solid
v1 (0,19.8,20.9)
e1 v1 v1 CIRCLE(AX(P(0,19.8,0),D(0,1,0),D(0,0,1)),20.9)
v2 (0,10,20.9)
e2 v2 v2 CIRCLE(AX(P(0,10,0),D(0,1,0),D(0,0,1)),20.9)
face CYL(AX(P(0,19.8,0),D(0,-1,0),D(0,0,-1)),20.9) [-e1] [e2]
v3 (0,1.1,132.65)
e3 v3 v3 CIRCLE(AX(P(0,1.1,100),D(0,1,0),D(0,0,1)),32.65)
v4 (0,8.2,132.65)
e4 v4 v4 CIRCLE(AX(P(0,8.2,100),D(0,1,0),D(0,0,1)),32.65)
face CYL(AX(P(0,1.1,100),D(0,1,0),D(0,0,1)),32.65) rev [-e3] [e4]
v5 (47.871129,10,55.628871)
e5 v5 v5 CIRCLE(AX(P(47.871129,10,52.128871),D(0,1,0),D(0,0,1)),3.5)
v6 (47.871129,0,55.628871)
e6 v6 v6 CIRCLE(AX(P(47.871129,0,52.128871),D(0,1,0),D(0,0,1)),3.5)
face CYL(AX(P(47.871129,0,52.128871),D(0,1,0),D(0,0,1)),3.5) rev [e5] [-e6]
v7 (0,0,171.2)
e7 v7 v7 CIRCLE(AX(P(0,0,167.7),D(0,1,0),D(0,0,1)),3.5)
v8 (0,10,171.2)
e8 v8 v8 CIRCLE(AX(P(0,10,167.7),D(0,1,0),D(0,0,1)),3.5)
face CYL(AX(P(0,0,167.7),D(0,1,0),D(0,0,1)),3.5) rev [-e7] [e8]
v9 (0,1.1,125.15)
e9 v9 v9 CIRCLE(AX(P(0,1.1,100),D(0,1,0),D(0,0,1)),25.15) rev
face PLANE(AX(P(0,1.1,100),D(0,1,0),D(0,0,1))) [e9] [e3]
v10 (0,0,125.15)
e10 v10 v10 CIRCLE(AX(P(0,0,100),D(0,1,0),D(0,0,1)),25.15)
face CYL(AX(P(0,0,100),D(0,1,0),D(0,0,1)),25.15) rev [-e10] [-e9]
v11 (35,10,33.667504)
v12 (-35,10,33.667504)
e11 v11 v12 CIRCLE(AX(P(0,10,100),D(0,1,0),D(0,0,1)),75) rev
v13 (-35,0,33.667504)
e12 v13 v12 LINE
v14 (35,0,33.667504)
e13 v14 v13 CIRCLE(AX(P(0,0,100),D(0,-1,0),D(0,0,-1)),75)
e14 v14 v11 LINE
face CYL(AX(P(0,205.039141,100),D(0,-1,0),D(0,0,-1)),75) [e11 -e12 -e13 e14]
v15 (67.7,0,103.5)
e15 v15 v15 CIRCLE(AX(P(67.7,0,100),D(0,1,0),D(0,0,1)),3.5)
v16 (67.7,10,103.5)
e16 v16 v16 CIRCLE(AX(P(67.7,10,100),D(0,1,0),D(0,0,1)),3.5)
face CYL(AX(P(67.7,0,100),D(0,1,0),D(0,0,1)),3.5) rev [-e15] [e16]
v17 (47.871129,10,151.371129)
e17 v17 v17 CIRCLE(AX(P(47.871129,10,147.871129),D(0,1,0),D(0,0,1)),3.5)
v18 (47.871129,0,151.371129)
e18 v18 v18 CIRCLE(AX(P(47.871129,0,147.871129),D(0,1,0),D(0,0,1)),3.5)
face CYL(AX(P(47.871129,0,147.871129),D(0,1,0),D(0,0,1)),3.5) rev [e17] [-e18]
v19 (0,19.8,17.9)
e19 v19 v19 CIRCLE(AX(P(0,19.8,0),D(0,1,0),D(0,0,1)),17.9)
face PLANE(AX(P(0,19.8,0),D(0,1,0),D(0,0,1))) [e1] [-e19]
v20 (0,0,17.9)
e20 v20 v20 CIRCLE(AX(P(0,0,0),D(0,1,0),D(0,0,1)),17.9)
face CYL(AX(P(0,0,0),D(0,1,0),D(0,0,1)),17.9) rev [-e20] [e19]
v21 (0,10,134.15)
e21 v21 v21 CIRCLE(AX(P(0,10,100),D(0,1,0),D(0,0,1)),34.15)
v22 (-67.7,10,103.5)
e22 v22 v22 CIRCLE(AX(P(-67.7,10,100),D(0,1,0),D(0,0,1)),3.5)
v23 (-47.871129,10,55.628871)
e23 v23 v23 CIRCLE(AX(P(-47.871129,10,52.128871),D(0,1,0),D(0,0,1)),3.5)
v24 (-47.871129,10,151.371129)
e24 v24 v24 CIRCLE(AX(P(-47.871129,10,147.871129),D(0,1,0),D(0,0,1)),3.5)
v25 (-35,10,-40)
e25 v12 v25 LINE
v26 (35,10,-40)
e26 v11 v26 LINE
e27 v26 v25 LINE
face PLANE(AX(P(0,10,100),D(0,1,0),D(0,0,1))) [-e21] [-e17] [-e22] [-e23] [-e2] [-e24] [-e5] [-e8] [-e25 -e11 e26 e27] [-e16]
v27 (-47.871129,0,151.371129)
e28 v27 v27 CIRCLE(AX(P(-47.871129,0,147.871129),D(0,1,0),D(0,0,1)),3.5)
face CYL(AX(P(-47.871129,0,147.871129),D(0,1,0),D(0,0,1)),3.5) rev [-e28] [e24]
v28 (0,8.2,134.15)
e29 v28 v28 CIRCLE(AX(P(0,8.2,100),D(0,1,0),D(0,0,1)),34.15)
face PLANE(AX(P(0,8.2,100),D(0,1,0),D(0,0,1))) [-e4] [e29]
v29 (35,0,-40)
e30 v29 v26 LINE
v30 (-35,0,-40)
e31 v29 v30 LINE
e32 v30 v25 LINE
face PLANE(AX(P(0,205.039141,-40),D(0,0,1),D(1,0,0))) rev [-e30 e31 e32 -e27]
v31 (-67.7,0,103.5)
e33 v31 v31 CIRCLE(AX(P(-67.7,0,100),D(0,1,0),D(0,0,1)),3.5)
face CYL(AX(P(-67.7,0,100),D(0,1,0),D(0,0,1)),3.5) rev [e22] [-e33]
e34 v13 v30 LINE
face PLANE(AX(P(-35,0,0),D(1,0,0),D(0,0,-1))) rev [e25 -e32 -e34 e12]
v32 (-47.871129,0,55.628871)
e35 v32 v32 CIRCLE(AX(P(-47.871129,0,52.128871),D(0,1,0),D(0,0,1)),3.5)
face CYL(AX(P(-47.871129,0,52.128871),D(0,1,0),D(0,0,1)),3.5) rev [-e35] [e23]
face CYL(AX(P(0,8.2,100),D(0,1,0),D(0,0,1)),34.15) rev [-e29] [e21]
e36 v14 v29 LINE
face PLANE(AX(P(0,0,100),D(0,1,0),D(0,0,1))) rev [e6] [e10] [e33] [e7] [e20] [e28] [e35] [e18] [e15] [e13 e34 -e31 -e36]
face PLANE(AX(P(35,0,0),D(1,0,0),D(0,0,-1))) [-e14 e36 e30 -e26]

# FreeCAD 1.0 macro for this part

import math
import FreeCAD as App
import Part
import Sketcher
Q = App.Units.Quantity

doc = App.newDocument("Part")
body = doc.addObject("PartDesign::Body", "Body")

sketch1 = doc.addObject("Sketcher::SketchObject", "Sketch")
body.addObject(sketch1)
sketch1.AttachmentSupport = (doc.XZ_Plane, [""])
sketch1.MapMode = "FlatFace"
sketch1.addGeometry([
    Part.LineSegment(App.Vector(64, 87, 0), App.Vector(44, -9, 0)),
    Part.ArcOfCircle(Part.Circle(App.Vector(0, 0, 0), App.Vector(0, 0, 1), 45), math.radians(-168), math.radians(-12)),
    Part.LineSegment(App.Vector(-44, -9, 0), App.Vector(-64, 87, 0)),
    Part.ArcOfCircle(Part.Circle(App.Vector(0, 100, 0), App.Vector(0, 0, 1), 65), math.radians(-12), math.radians(192)),
], False)
sketch1.addConstraint([
    Sketcher.Constraint("Tangent", 0, 2, 1, 2),
    Sketcher.Constraint("Tangent", 1, 1, 2, 1),
    Sketcher.Constraint("Tangent", 2, 2, 3, 2),
    Sketcher.Constraint("Tangent", 3, 1, 0, 1),
    Sketcher.Constraint("Coincident", 1, 3, -1, 1),
    Sketcher.Constraint("PointOnObject", 3, 3, -2),
    Sketcher.Constraint("Radius", 1, Q("45 mm")),
    Sketcher.Constraint("Radius", 3, Q("65 mm")),
    Sketcher.Constraint("DistanceY", -1, 1, 3, 3, Q("100 mm")),
])
pad1 = doc.addObject("PartDesign::Pad", "Pad")
body.addObject(pad1)
pad1.Profile = sketch1
pad1.Length = 10
pad1.Reversed = True

sketch2 = doc.addObject("Sketcher::SketchObject", "Sketch001")
body.addObject(sketch2)
sketch2.AttachmentSupport = (doc.XZ_Plane, [""])
sketch2.MapMode = "FlatFace"
sketch2.AttachmentOffset = App.Placement(App.Vector(0, 0, -10), App.Rotation())
sketch2.addGeometry([
    Part.Circle(App.Vector(0, 0, 0), App.Vector(0, 0, 1), 18),
    Part.Circle(App.Vector(0, 100, 0), App.Vector(0, 0, 1), 25),
], False)
sketch2.addConstraint([
    Sketcher.Constraint("Coincident", 0, 3, -1, 1),
    Sketcher.Constraint("PointOnObject", 1, 3, -2),
    Sketcher.Constraint("Diameter", 0, Q("35.8 mm")),
    Sketcher.Constraint("Diameter", 1, Q("50.3 mm")),
    Sketcher.Constraint("DistanceY", -1, 1, 1, 3, Q("100 mm")),
])
pocket1 = doc.addObject("PartDesign::Pocket", "Pocket")
body.addObject(pocket1)
pocket1.Profile = sketch2
pocket1.Type = "ThroughAll"
pocket1.Reversed = True

sketch3 = doc.addObject("Sketcher::SketchObject", "Sketch002")
body.addObject(sketch3)
sketch3.AttachmentSupport = (doc.XZ_Plane, [""])
sketch3.MapMode = "FlatFace"
sketch3.AttachmentOffset = App.Placement(App.Vector(0, 0, -10), App.Rotation())
sketch3.addGeometry(Part.Circle(App.Vector(0, 100, 0), App.Vector(0, 0, 1), 34), False)
sketch3.addConstraint([
    Sketcher.Constraint("PointOnObject", 0, 3, -2),
    Sketcher.Constraint("Diameter", 0, Q("68.3 mm")),
    Sketcher.Constraint("DistanceY", -1, 1, 0, 3, Q("100 mm")),
])
pocket2 = doc.addObject("PartDesign::Pocket", "Pocket001")
body.addObject(pocket2)
pocket2.Profile = sketch3
pocket2.Length = 1.8
pocket2.Reversed = True

sketch4 = doc.addObject("Sketcher::SketchObject", "Sketch003")
body.addObject(sketch4)
sketch4.AttachmentSupport = (doc.XZ_Plane, [""])
sketch4.MapMode = "FlatFace"
sketch4.AttachmentOffset = App.Placement(App.Vector(0, 0, -8.2), App.Rotation())
sketch4.addGeometry(Part.Circle(App.Vector(0, 100, 0), App.Vector(0, 0, 1), 33), False)
sketch4.addConstraint([
    Sketcher.Constraint("PointOnObject", 0, 3, -2),
    Sketcher.Constraint("Diameter", 0, Q("65.3 mm")),
    Sketcher.Constraint("DistanceY", -1, 1, 0, 3, Q("100 mm")),
])
pocket3 = doc.addObject("PartDesign::Pocket", "Pocket002")
body.addObject(pocket3)
pocket3.Profile = sketch4
pocket3.Length = 7.1
pocket3.Reversed = True

sketch5 = doc.addObject("Sketcher::SketchObject", "Sketch004")
body.addObject(sketch5)
sketch5.AttachmentSupport = (doc.XZ_Plane, [""])
sketch5.MapMode = "FlatFace"
sketch5.AttachmentOffset = App.Placement(App.Vector(0, 0, -19.8), App.Rotation())
sketch5.addGeometry([
    Part.Circle(App.Vector(0, 0, 0), App.Vector(0, 0, 1), 21),
    Part.Circle(App.Vector(0, 0, 0), App.Vector(0, 0, 1), 18),
], False)
sketch5.addConstraint([
    Sketcher.Constraint("Coincident", 0, 3, -1, 1),
    Sketcher.Constraint("Coincident", 1, 3, -1, 1),
    Sketcher.Constraint("Diameter", 0, Q("41.8 mm")),
    Sketcher.Constraint("Diameter", 1, Q("35.8 mm")),
])
pad2 = doc.addObject("PartDesign::Pad", "Pad001")
body.addObject(pad2)
pad2.Profile = sketch5
pad2.Length = 9.8

sketch6 = doc.addObject("Sketcher::SketchObject", "Sketch005")
body.addObject(sketch6)
sketch6.AttachmentSupport = (doc.XZ_Plane, [""])
sketch6.MapMode = "FlatFace"
sketch6.AttachmentOffset = App.Placement(App.Vector(0, 0, -10), App.Rotation())
sketch6.addGeometry([
    Part.LineSegment(App.Vector(-44.1, -9, 0), App.Vector(-45, -4.5, 0)),
    Part.LineSegment(App.Vector(-45, -4.5, 0), App.Vector(-45, -40, 0)),
    Part.LineSegment(App.Vector(-45, -40, 0), App.Vector(-20.6, -40, 0)),
    Part.ArcOfCircle(Part.Circle(App.Vector(0, 0, 0), App.Vector(0, 0, 1), 45), math.radians(-168), math.radians(-117)),
    Part.ArcOfCircle(Part.Circle(App.Vector(0, 100, 0), App.Vector(0, 0, 1), 75), math.radians(-41), math.radians(221)),
    Part.LineSegment(App.Vector(-56.2, 50.3, 0), App.Vector(-63.7, 87, 0)),
    Part.ArcOfCircle(Part.Circle(App.Vector(0, 100, 0), App.Vector(0, 0, 1), 65), math.radians(-12), math.radians(192)),
    Part.LineSegment(App.Vector(63.7, 87, 0), App.Vector(56.2, 50.3, 0)),
    Part.LineSegment(App.Vector(45, -40, 0), App.Vector(45, -4.5, 0)),
    Part.LineSegment(App.Vector(45, -4.5, 0), App.Vector(44.1, -9, 0)),
    Part.ArcOfCircle(Part.Circle(App.Vector(0, 0, 0), App.Vector(0, 0, 1), 45), math.radians(-63), math.radians(-12)),
    Part.LineSegment(App.Vector(20.6, -40, 0), App.Vector(45, -40, 0)),
], False)
sketch6.addConstraint([
    Sketcher.Constraint("Coincident", 0, 2, 1, 1),
    Sketcher.Constraint("Coincident", 1, 2, 2, 1),
    Sketcher.Constraint("Coincident", 2, 2, 3, 2),
    Sketcher.Constraint("Tangent", 3, 1, 0, 1),
    Sketcher.Constraint("Coincident", 4, 2, 5, 1),
    Sketcher.Constraint("Tangent", 5, 2, 6, 2),
    Sketcher.Constraint("Tangent", 6, 1, 7, 1),
    Sketcher.Constraint("Coincident", 7, 2, 4, 1),
    Sketcher.Constraint("Coincident", 8, 2, 9, 1),
    Sketcher.Constraint("Tangent", 9, 2, 10, 2),
    Sketcher.Constraint("Coincident", 10, 1, 11, 1),
    Sketcher.Constraint("Coincident", 11, 2, 8, 1),
    Sketcher.Constraint("Vertical", 1),
    Sketcher.Constraint("Horizontal", 2),
    Sketcher.Constraint("Vertical", 8),
    Sketcher.Constraint("Horizontal", 11),
    Sketcher.Constraint("Coincident", 3, 3, -1, 1),
    Sketcher.Constraint("Coincident", 10, 3, -1, 1),
    Sketcher.Constraint("Coincident", 6, 3, 4, 3),
    Sketcher.Constraint("Equal", 3, 10),
    Sketcher.Constraint("Symmetric", 5, 2, 6, 1, -2),
    Sketcher.Constraint("Symmetric", 0, 2, 8, 2, -2),
    Sketcher.Constraint("Parallel", 0, 5),
    Sketcher.Constraint("Horizontal", 2, 2, 10, 1),
    Sketcher.Constraint("Radius", 3, Q("45 mm")),
    Sketcher.Constraint("Radius", 4, Q("75 mm")),
    Sketcher.Constraint("Radius", 6, Q("65 mm")),
    Sketcher.Constraint("DistanceY", -1, 1, 4, 3, Q("100 mm")),
    Sketcher.Constraint("DistanceX", 0, 2, -1, 1, Q("45 mm")),
    Sketcher.Constraint("DistanceY", 1, 2, -1, 1, Q("40 mm")),
    Sketcher.Constraint("DistanceY", 3, 1, -1, 1, Q("9 mm")),
])
pad3 = doc.addObject("PartDesign::Pad", "Pad002")
body.addObject(pad3)
pad3.Profile = sketch6
pad3.Length = 10

sketch7 = doc.addObject("Sketcher::SketchObject", "Sketch006")
body.addObject(sketch7)
sketch7.AttachmentSupport = (doc.XZ_Plane, [""])
sketch7.MapMode = "FlatFace"
sketch7.addGeometry([
    Part.LineSegment(App.Vector(-45, -5, 0), App.Vector(-45, 40, 0)),
    Part.ArcOfCircle(Part.Circle(App.Vector(0, 100, 0), App.Vector(0, 0, 1), 75), math.radians(-138.54), math.radians(-126.87)),
    Part.LineSegment(App.Vector(-56, 50, 0), App.Vector(-45, -5, 0)),
    Part.ArcOfCircle(Part.Circle(App.Vector(0, 100, 0), App.Vector(0, 0, 1), 75), math.radians(-53.13), math.radians(-41.46)),
    Part.LineSegment(App.Vector(45, 40, 0), App.Vector(45, -5, 0)),
    Part.LineSegment(App.Vector(45, -5, 0), App.Vector(56, 50, 0)),
    Part.LineSegment(App.Vector(21, -40, 0), App.Vector(-21, -40, 0)),
    Part.ArcOfCircle(Part.Circle(App.Vector(0, 0, 0), App.Vector(0, 0, 1), 45), math.radians(-117), math.radians(-63)),
], False)
sketch7.addConstraint([
    Sketcher.Constraint("Coincident", 0, 2, 1, 2),
    Sketcher.Constraint("Coincident", 1, 1, 2, 1),
    Sketcher.Constraint("Coincident", 2, 2, 0, 1),
    Sketcher.Constraint("Coincident", 3, 1, 4, 1),
    Sketcher.Constraint("Coincident", 4, 2, 5, 1),
    Sketcher.Constraint("Coincident", 5, 2, 3, 2),
    Sketcher.Constraint("Coincident", 6, 1, 7, 2),
    Sketcher.Constraint("Coincident", 7, 1, 6, 2),
    Sketcher.Constraint("Vertical", 0),
    Sketcher.Constraint("Vertical", 4),
    Sketcher.Constraint("Horizontal", 6),
    Sketcher.Constraint("Coincident", 7, 3, -1, 1),
    Sketcher.Constraint("Coincident", 3, 3, 1, 3),
    Sketcher.Constraint("Equal", 1, 3),
    Sketcher.Constraint("Symmetric", 0, 2, 3, 1, -2),
    Sketcher.Constraint("Horizontal", 2, 2, 4, 2),
    Sketcher.Constraint("Horizontal", 1, 1, 5, 2),
    Sketcher.Constraint("Radius", 1, Q("75 mm")),
    Sketcher.Constraint("Radius", 7, Q("45 mm")),
    Sketcher.Constraint("DistanceY", -1, 1, 1, 3, Q("100 mm")),
    Sketcher.Constraint("DistanceX", 0, 2, -1, 1, Q("45 mm")),
    Sketcher.Constraint("DistanceY", 6, 1, -1, 1, Q("40 mm")),
    Sketcher.Constraint("DistanceY", 0, 1, 0, 2, Q("44.545923 mm")),
    Sketcher.Constraint("DistanceX", 1, 1, -1, 1, Q("56.203419 mm")),
])
pocket4 = doc.addObject("PartDesign::Pocket", "Pocket003")
body.addObject(pocket4)
pocket4.Profile = sketch7
pocket4.Type = "ThroughAll"

sketch8 = doc.addObject("Sketcher::SketchObject", "Sketch007")
body.addObject(sketch8)
sketch8.AttachmentSupport = (doc.XZ_Plane, [""])
sketch8.MapMode = "FlatFace"
sketch8.AttachmentOffset = App.Placement(App.Vector(0, 0, -10), App.Rotation())
sketch8.addGeometry([
    Part.Circle(App.Vector(0, 167.7, 0), App.Vector(0, 0, 1), 3.5),
    Part.Circle(App.Vector(47.9, 147.9, 0), App.Vector(0, 0, 1), 3.5),
    Part.Circle(App.Vector(-47.9, 147.9, 0), App.Vector(0, 0, 1), 3.5),
    Part.Circle(App.Vector(-67.7, 100, 0), App.Vector(0, 0, 1), 3.5),
    Part.Circle(App.Vector(-47.9, 52.1, 0), App.Vector(0, 0, 1), 3.5),
    Part.Circle(App.Vector(67.7, 100, 0), App.Vector(0, 0, 1), 3.5),
    Part.Circle(App.Vector(47.9, 52.1, 0), App.Vector(0, 0, 1), 3.5),
], False)
sketch8.addConstraint([
    Sketcher.Constraint("Equal", 0, 1),
    Sketcher.Constraint("Equal", 1, 2),
    Sketcher.Constraint("Equal", 2, 3),
    Sketcher.Constraint("Equal", 3, 4),
    Sketcher.Constraint("Equal", 4, 5),
    Sketcher.Constraint("Equal", 5, 6),
    Sketcher.Constraint("Symmetric", 1, 3, 2, 3, -2),
    Sketcher.Constraint("Symmetric", 3, 3, 5, 3, -2),
    Sketcher.Constraint("Symmetric", 4, 3, 6, 3, -2),
    Sketcher.Constraint("PointOnObject", 0, 3, -2),
    Sketcher.Constraint("Vertical", 2, 3, 4, 3),
    Sketcher.Constraint("Diameter", 0, Q("7 mm")),
    Sketcher.Constraint("DistanceY", -1, 1, 3, 3, Q("100 mm")),
    Sketcher.Constraint("DistanceY", -1, 1, 0, 3, Q("167.7 mm")),
    Sketcher.Constraint("DistanceX", 3, 3, -1, 1, Q("67.7 mm")),
    Sketcher.Constraint("DistanceX", -1, 1, 1, 3, Q("47.871129 mm")),
    Sketcher.Constraint("DistanceY", -1, 1, 1, 3, Q("147.871129 mm")),
    Sketcher.Constraint("DistanceY", -1, 1, 4, 3, Q("52.128871 mm")),
])
pocket5 = doc.addObject("PartDesign::Pocket", "Pocket004")
body.addObject(pocket5)
pocket5.Profile = sketch8
pocket5.Type = "ThroughAll"
pocket5.Reversed = True

sketch9 = doc.addObject("Sketcher::SketchObject", "Sketch008")
body.addObject(sketch9)
sketch9.AttachmentSupport = (doc.XZ_Plane, [""])
sketch9.MapMode = "FlatFace"
sketch9.AttachmentOffset = App.Placement(App.Vector(0, 0, -10), App.Rotation())
sketch9.addGeometry([
    Part.ArcOfCircle(Part.Circle(App.Vector(0, 100, 0), App.Vector(0, 0, 1), 75), math.radians(-126.87), math.radians(-117.82)),
    Part.LineSegment(App.Vector(-35, 34, 0), App.Vector(-35, -40, 0)),
    Part.LineSegment(App.Vector(-35, -40, 0), App.Vector(-45, -40, 0)),
    Part.LineSegment(App.Vector(-45, -40, 0), App.Vector(-45, 40, 0)),
    Part.LineSegment(App.Vector(35, -40, 0), App.Vector(35, 34, 0)),
    Part.ArcOfCircle(Part.Circle(App.Vector(0, 100, 0), App.Vector(0, 0, 1), 75), math.radians(-62.18), math.radians(-53.13)),
    Part.LineSegment(App.Vector(45, 40, 0), App.Vector(45, -40, 0)),
    Part.LineSegment(App.Vector(45, -40, 0), App.Vector(35, -40, 0)),
], False)
sketch9.addConstraint([
    Sketcher.Constraint("Coincident", 0, 2, 1, 1),
    Sketcher.Constraint("Coincident", 1, 2, 2, 1),
    Sketcher.Constraint("Coincident", 2, 2, 3, 1),
    Sketcher.Constraint("Coincident", 3, 2, 0, 1),
    Sketcher.Constraint("Coincident", 4, 2, 5, 1),
    Sketcher.Constraint("Coincident", 5, 2, 6, 1),
    Sketcher.Constraint("Coincident", 6, 2, 7, 1),
    Sketcher.Constraint("Coincident", 7, 2, 4, 1),
    Sketcher.Constraint("Vertical", 1),
    Sketcher.Constraint("Horizontal", 2),
    Sketcher.Constraint("Vertical", 3),
    Sketcher.Constraint("Vertical", 4),
    Sketcher.Constraint("Vertical", 6),
    Sketcher.Constraint("Horizontal", 7),
    Sketcher.Constraint("Coincident", 5, 3, 0, 3),
    Sketcher.Constraint("Equal", 0, 5),
    Sketcher.Constraint("Symmetric", 2, 2, 5, 2, -1, 1),
    Sketcher.Constraint("Symmetric", 0, 2, 4, 2, -2),
    Sketcher.Constraint("Horizontal", 2, 2, 6, 2),
    Sketcher.Constraint("Radius", 0, Q("75 mm")),
    Sketcher.Constraint("DistanceX", 2, 2, 2, 1, Q("10 mm")),
    Sketcher.Constraint("DistanceY", 3, 1, 3, 2, Q("80 mm")),
    Sketcher.Constraint("DistanceY", -1, 1, 0, 3, Q("100 mm")),
])
pocket6 = doc.addObject("PartDesign::Pocket", "Pocket005")
body.addObject(pocket6)
pocket6.Profile = sketch9
pocket6.Type = "ThroughAll"
pocket6.Reversed = True

doc.recompute()
